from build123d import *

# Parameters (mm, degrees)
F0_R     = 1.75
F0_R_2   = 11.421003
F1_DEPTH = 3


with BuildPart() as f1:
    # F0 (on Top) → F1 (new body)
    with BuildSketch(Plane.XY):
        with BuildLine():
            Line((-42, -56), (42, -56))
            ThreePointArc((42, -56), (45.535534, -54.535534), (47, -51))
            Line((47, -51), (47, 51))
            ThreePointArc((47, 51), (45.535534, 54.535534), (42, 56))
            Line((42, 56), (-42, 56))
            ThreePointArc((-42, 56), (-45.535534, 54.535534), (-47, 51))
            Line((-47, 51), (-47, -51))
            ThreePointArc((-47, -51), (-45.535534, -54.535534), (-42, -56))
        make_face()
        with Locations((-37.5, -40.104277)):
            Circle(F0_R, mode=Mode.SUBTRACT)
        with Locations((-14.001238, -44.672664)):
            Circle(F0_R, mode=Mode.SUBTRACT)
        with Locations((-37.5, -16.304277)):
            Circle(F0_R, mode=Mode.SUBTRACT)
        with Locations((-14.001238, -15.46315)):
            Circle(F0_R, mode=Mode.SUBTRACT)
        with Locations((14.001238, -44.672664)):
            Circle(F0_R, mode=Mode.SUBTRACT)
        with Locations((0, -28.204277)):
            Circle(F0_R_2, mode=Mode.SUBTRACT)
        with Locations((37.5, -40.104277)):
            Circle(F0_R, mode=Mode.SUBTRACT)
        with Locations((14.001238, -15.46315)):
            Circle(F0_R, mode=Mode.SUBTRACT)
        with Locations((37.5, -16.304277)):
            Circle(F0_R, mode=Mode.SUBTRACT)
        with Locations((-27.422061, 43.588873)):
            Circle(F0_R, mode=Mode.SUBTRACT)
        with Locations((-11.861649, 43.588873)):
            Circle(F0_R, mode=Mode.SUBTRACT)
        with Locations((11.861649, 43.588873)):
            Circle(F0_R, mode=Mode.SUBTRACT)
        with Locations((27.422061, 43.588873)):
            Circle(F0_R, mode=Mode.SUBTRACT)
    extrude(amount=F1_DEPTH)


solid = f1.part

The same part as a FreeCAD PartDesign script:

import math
import FreeCAD as App
import Part
import Sketcher
from FreeCAD import Vector

doc = App.newDocument("Part")
body = doc.addObject("PartDesign::Body", "Body")

# Sketch on XY plane
sketch1 = body.newObject("Sketcher::SketchObject", "Sketch")
sketch1.AttachmentSupport = (doc.getObject("XY_Plane"), [""])
sketch1.MapMode = "FlatFace"
sketch1.addGeometry([
    Part.LineSegment(Vector(-42, -56, 0), Vector(42, -56, 0)),  # 0
    Part.ArcOfCircle(Part.Circle(Vector(42, -51, 0), Vector(0, 0, 1), 5), math.radians(-90), math.radians(0)),  # 1
    Part.LineSegment(Vector(47, -51, 0), Vector(47, 51, 0)),  # 2
    Part.ArcOfCircle(Part.Circle(Vector(42, 51, 0), Vector(0, 0, 1), 5), math.radians(0), math.radians(90)),  # 3
    Part.LineSegment(Vector(42, 56, 0), Vector(-42, 56, 0)),  # 4
    Part.ArcOfCircle(Part.Circle(Vector(-42, 51, 0), Vector(0, 0, 1), 5), math.radians(90), math.radians(180)),  # 5
    Part.LineSegment(Vector(-47, 51, 0), Vector(-47, -51, 0)),  # 6
    Part.ArcOfCircle(Part.Circle(Vector(-42, -51, 0), Vector(0, 0, 1), 5), math.radians(180), math.radians(270)),  # 7
    Part.Circle(Vector(-37.5, -40.1, 0), Vector(0, 0, 1), 1.8),  # 8
    Part.Circle(Vector(-14, -44.7, 0), Vector(0, 0, 1), 1.8),  # 9
    Part.Circle(Vector(-37.5, -16.3, 0), Vector(0, 0, 1), 1.8),  # 10
    Part.Circle(Vector(-14, -15.5, 0), Vector(0, 0, 1), 1.8),  # 11
    Part.Circle(Vector(14, -44.7, 0), Vector(0, 0, 1), 1.8),  # 12
    Part.Circle(Vector(0, -28.2, 0), Vector(0, 0, 1), 11.4),  # 13
    Part.Circle(Vector(37.5, -40.1, 0), Vector(0, 0, 1), 1.8),  # 14
    Part.Circle(Vector(14, -15.5, 0), Vector(0, 0, 1), 1.8),  # 15
    Part.Circle(Vector(37.5, -16.3, 0), Vector(0, 0, 1), 1.8),  # 16
    Part.Circle(Vector(-27.4, 43.6, 0), Vector(0, 0, 1), 1.8),  # 17
    Part.Circle(Vector(-11.9, 43.6, 0), Vector(0, 0, 1), 1.8),  # 18
    Part.Circle(Vector(11.9, 43.6, 0), Vector(0, 0, 1), 1.8),  # 19
    Part.Circle(Vector(27.4, 43.6, 0), Vector(0, 0, 1), 1.8),  # 20
], False)
sketch1.addConstraint([
    Sketcher.Constraint("Tangent", 0, 2, 1, 1),
    Sketcher.Constraint("Tangent", 1, 2, 2, 1),
    Sketcher.Constraint("Tangent", 2, 2, 3, 1),
    Sketcher.Constraint("Tangent", 3, 2, 4, 1),
    Sketcher.Constraint("Tangent", 4, 2, 5, 1),
    Sketcher.Constraint("Tangent", 5, 2, 6, 1),
    Sketcher.Constraint("Tangent", 6, 2, 7, 1),
    Sketcher.Constraint("Tangent", 7, 2, 0, 1),
    Sketcher.Constraint("Horizontal", 0),
    Sketcher.Constraint("Vertical", 2),
    Sketcher.Constraint("Horizontal", 4),
    Sketcher.Constraint("Vertical", 6),
    Sketcher.Constraint("Equal", 1, 3),
    Sketcher.Constraint("Equal", 3, 5),
    Sketcher.Constraint("Equal", 5, 7),
    Sketcher.Constraint("Equal", 8, 9),
    Sketcher.Constraint("Equal", 9, 10),
    Sketcher.Constraint("Equal", 10, 11),
    Sketcher.Constraint("Equal", 11, 12),
    Sketcher.Constraint("Equal", 12, 14),
    Sketcher.Constraint("Equal", 14, 15),
    Sketcher.Constraint("Equal", 15, 16),
    Sketcher.Constraint("Equal", 16, 17),
    Sketcher.Constraint("Equal", 17, 18),
    Sketcher.Constraint("Equal", 18, 19),
    Sketcher.Constraint("Equal", 19, 20),
    Sketcher.Constraint("Symmetric", 1, 3, 5, 3, -1, 1),
    Sketcher.Constraint("Symmetric", 9, 3, 12, 3, -2),
    Sketcher.Constraint("Symmetric", 8, 3, 14, 3, -2),
    Sketcher.Constraint("Symmetric", 11, 3, 15, 3, -2),
    Sketcher.Constraint("Symmetric", 10, 3, 16, 3, -2),
    Sketcher.Constraint("Symmetric", 18, 3, 19, 3, -2),
    Sketcher.Constraint("Symmetric", 17, 3, 20, 3, -2),
    Sketcher.Constraint("PointOnObject", 13, 3, -2),
    Sketcher.Constraint("Horizontal", 17, 3, 18, 3),
    Sketcher.Constraint("Vertical", 8, 3, 10, 3),
    Sketcher.Constraint("Vertical", 9, 3, 11, 3),
    Sketcher.Constraint("Radius", 1, 5.0),
    Sketcher.Constraint("Diameter", 8, 3.5),
    Sketcher.Constraint("DistanceX", 0, 1, 0, 2, 84.0),
    Sketcher.Constraint("DistanceY", 2, 1, 2, 2, 102.0),
    Sketcher.Constraint("DistanceX", 8, 3, -1, 1, 37.5),
    Sketcher.Constraint("DistanceY", 8, 3, 10, 3, 23.8),
    Sketcher.Constraint("DistanceY", 8, 3, 13, 3, 11.9),
    Sketcher.Constraint("Diameter", 13, 22.842006),
    Sketcher.Constraint("DistanceX", 17, 3, 15, 3, 41.423299),
    Sketcher.Constraint("DistanceX", 18, 3, 19, 3, 23.723298),
    Sketcher.Constraint("DistanceX", 9, 3, -1, 1, 14.001238),
    Sketcher.Constraint("DistanceY", 11, 3, -1, 1, 15.46315),
    Sketcher.Constraint("DistanceY", 10, 3, 17, 3, 59.89315),
    Sketcher.Constraint("DistanceY", 8, 3, -1, 1, 40.104277),
    Sketcher.Constraint("DistanceY", 9, 3, -1, 1, 44.672664),
])
pad1 = body.newObject("PartDesign::Pad", "Pad")
pad1.Profile = sketch1
pad1.Length = 3

doc.recompute()
